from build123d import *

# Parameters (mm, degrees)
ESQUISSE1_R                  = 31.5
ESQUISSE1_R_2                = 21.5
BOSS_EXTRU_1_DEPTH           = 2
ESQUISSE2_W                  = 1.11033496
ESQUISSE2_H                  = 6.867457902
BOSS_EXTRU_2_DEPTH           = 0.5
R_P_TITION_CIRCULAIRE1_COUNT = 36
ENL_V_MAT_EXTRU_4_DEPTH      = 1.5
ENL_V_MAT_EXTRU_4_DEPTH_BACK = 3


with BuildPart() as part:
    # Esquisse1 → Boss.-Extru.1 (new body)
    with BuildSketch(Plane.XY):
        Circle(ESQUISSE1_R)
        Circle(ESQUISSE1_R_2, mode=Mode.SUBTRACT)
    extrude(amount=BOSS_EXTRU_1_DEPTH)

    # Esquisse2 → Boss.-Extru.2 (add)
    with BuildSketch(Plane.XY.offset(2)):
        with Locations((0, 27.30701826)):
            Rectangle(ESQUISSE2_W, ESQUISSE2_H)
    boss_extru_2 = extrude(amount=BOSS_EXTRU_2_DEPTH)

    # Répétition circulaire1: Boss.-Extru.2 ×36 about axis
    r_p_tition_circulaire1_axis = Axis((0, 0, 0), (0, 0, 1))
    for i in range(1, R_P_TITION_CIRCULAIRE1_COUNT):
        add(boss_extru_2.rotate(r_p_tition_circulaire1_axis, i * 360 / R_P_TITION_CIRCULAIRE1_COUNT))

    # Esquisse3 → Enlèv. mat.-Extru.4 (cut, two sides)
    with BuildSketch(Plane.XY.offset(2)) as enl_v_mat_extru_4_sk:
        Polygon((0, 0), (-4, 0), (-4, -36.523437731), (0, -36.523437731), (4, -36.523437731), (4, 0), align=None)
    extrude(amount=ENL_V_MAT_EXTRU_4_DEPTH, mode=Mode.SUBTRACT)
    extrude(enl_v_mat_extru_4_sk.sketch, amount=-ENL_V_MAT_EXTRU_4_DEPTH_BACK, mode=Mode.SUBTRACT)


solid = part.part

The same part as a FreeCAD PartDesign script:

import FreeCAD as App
import Part
import Sketcher

V = App.Vector


def add_polygon(sketch, points):
    """Adds a closed chain of lines whose ends are joined by coincident constraints."""
    first, n = sketch.GeometryCount, len(points)
    for a, b in zip(points, points[1:] + points[:1]):
        sketch.addGeometry(Part.LineSegment(App.Vector(*a, 0), App.Vector(*b, 0)), False)
    for i in range(n):
        sketch.addConstraint(Sketcher.Constraint("Coincident", first + i, 2, first + (i + 1) % n, 1))

doc = App.newDocument("Part")
body = doc.addObject("PartDesign::Body", "Body")

sketch1 = doc.addObject("Sketcher::SketchObject", "Sketch")
body.addObject(sketch1)
sketch1.AttachmentSupport = (doc.XY_Plane, [""])
sketch1.MapMode = "FlatFace"
sketch1.addGeometry([
    Part.Circle(V(0, 0, 0), V(0, 0, 1), 32),
    Part.Circle(V(0, 0, 0), V(0, 0, 1), 22),
], False)
sketch1.addConstraint([
    Sketcher.Constraint("Coincident", 0, 3, -1, 1),
    Sketcher.Constraint("Coincident", 1, 3, -1, 1),
    Sketcher.Constraint("Diameter", 0, 63.0),
    Sketcher.Constraint("Diameter", 1, 43.0),
])
pad1 = doc.addObject("PartDesign::Pad", "Pad")
body.addObject(pad1)
pad1.Profile = sketch1
pad1.Length = 2

sketch2 = doc.addObject("Sketcher::SketchObject", "Sketch001")
body.addObject(sketch2)
sketch2.AttachmentSupport = (doc.XY_Plane, [""])
sketch2.MapMode = "FlatFace"
sketch2.AttachmentOffset = App.Placement(V(0, 0, 2), App.Rotation())
add_polygon(sketch2, [(-0.6, 30.7), (-0.6, 23.9), (0.6, 23.9), (0.6, 30.7)])
sketch2.addConstraint([
    Sketcher.Constraint("Vertical", 0),
    Sketcher.Constraint("Horizontal", 1),
    Sketcher.Constraint("Vertical", 2),
    Sketcher.Constraint("Horizontal", 3),
    Sketcher.Constraint("DistanceX", 1, 1, 1, 2, 1.110335),
    Sketcher.Constraint("DistanceY", 0, 2, 0, 1, 6.867458),
    Sketcher.Constraint("DistanceY", -1, 1, 0, 2, 23.873289),
    Sketcher.Constraint("DistanceX", 0, 2, -1, 1, 0.555167),
])
pad2 = doc.addObject("PartDesign::Pad", "Pad001")
body.addObject(pad2)
pad2.Profile = sketch2
pad2.Length = 0.5
doc.recompute()

polarpattern = doc.addObject("PartDesign::PolarPattern", "PolarPattern")
body.addObject(polarpattern)
polarpattern.Originals = [pad2]
polarpattern.Axis = (doc.Z_Axis, [""])
polarpattern.Angle = 360
polarpattern.Occurrences = 36
body.Tip = polarpattern

sketch3 = doc.addObject("Sketcher::SketchObject", "Sketch002")
body.addObject(sketch3)
sketch3.AttachmentSupport = (doc.XY_Plane, [""])
sketch3.MapMode = "FlatFace"
sketch3.AttachmentOffset = App.Placement(V(0, 0, 2), App.Rotation())
add_polygon(sketch3, [(-4, 0), (-4, -37), (4, -37), (4, 0)])
sketch3.addConstraint([
    Sketcher.Constraint("Vertical", 0),
    Sketcher.Constraint("Horizontal", 1),
    Sketcher.Constraint("Vertical", 2),
    Sketcher.Constraint("Horizontal", 3),
    Sketcher.Constraint("Symmetric", 2, 2, 3, 2, -1, 1),
    Sketcher.Constraint("DistanceX", 1, 1, 1, 2, 8.0),
    Sketcher.Constraint("DistanceY", 0, 2, 0, 1, 36.523438),
])
pocket1 = doc.addObject("PartDesign::Pocket", "Pocket")
body.addObject(pocket1)
pocket1.Profile = sketch3
pocket1.Type = "ThroughAll"
pocket1.Midplane = True

doc.recompute()
